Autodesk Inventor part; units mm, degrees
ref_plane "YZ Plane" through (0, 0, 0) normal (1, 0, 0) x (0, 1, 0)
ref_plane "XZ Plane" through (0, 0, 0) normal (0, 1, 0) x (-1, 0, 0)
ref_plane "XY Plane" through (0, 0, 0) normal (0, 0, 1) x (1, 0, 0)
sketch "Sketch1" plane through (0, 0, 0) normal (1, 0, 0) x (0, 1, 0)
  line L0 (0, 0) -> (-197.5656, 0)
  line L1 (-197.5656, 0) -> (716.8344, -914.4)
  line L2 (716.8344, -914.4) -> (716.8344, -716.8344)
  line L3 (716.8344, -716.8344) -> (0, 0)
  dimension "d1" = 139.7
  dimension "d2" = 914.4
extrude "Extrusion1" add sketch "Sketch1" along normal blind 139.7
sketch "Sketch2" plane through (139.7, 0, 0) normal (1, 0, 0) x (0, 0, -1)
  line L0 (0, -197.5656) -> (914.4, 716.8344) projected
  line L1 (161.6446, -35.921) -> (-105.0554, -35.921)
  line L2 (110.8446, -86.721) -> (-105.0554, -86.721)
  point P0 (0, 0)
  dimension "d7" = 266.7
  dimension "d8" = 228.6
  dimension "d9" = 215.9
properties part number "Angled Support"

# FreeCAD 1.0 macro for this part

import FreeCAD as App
import Part
import Sketcher
from FreeCAD import Vector
Q = App.Units.Quantity

doc = App.newDocument("Part")
params = doc.addObject("Spreadsheet::Sheet", "Params")
for row, (alias, value) in enumerate([
    ("pad1_length", "5.5 in"),
], start=1):
    params.set(f"A{row}", alias)
    params.set(f"B{row}", "=" + value)
    params.setAlias(f"B{row}", alias)

body = doc.addObject("PartDesign::Body", "Body")

# Sketch on YZ plane
sketch1 = body.newObject("Sketcher::SketchObject", "Sketch")
sketch1.AttachmentSupport = (doc.getObject("YZ_Plane"), [""])
sketch1.MapMode = "FlatFace"
sketch1.addGeometry([
    Part.LineSegment(Vector(717, -717, 0), Vector(0, 0, 0)),
    Part.LineSegment(Vector(0, 0, 0), Vector(-198, 0, 0)),
    Part.LineSegment(Vector(-198, 0, 0), Vector(717, -914, 0)),
    Part.LineSegment(Vector(717, -914, 0), Vector(717, -717, 0)),
], False)
sketch1.addConstraint([
    Sketcher.Constraint("Coincident", 0, 2, 1, 1),
    Sketcher.Constraint("Coincident", 1, 2, 2, 1),
    Sketcher.Constraint("Coincident", 2, 2, 3, 1),
    Sketcher.Constraint("Coincident", 3, 2, 0, 1),
    Sketcher.Constraint("Horizontal", 1),
    Sketcher.Constraint("Vertical", 3),
    Sketcher.Constraint("Coincident", 0, 2, -1, 1),
    Sketcher.Constraint("Parallel", 0, 2),
    Sketcher.Constraint("Equal", 1, 3),
    Sketcher.Constraint("DistanceY", 2, 2, -1, 1, Q("36 in")),
    Sketcher.Constraint("Distance", 0, Q("39.9117 in")),
])
pad1 = body.newObject("PartDesign::Pad", "Pad")
pad1.Profile = sketch1
pad1.setExpression("Length", "Params.pad1_length")

doc.recompute()
